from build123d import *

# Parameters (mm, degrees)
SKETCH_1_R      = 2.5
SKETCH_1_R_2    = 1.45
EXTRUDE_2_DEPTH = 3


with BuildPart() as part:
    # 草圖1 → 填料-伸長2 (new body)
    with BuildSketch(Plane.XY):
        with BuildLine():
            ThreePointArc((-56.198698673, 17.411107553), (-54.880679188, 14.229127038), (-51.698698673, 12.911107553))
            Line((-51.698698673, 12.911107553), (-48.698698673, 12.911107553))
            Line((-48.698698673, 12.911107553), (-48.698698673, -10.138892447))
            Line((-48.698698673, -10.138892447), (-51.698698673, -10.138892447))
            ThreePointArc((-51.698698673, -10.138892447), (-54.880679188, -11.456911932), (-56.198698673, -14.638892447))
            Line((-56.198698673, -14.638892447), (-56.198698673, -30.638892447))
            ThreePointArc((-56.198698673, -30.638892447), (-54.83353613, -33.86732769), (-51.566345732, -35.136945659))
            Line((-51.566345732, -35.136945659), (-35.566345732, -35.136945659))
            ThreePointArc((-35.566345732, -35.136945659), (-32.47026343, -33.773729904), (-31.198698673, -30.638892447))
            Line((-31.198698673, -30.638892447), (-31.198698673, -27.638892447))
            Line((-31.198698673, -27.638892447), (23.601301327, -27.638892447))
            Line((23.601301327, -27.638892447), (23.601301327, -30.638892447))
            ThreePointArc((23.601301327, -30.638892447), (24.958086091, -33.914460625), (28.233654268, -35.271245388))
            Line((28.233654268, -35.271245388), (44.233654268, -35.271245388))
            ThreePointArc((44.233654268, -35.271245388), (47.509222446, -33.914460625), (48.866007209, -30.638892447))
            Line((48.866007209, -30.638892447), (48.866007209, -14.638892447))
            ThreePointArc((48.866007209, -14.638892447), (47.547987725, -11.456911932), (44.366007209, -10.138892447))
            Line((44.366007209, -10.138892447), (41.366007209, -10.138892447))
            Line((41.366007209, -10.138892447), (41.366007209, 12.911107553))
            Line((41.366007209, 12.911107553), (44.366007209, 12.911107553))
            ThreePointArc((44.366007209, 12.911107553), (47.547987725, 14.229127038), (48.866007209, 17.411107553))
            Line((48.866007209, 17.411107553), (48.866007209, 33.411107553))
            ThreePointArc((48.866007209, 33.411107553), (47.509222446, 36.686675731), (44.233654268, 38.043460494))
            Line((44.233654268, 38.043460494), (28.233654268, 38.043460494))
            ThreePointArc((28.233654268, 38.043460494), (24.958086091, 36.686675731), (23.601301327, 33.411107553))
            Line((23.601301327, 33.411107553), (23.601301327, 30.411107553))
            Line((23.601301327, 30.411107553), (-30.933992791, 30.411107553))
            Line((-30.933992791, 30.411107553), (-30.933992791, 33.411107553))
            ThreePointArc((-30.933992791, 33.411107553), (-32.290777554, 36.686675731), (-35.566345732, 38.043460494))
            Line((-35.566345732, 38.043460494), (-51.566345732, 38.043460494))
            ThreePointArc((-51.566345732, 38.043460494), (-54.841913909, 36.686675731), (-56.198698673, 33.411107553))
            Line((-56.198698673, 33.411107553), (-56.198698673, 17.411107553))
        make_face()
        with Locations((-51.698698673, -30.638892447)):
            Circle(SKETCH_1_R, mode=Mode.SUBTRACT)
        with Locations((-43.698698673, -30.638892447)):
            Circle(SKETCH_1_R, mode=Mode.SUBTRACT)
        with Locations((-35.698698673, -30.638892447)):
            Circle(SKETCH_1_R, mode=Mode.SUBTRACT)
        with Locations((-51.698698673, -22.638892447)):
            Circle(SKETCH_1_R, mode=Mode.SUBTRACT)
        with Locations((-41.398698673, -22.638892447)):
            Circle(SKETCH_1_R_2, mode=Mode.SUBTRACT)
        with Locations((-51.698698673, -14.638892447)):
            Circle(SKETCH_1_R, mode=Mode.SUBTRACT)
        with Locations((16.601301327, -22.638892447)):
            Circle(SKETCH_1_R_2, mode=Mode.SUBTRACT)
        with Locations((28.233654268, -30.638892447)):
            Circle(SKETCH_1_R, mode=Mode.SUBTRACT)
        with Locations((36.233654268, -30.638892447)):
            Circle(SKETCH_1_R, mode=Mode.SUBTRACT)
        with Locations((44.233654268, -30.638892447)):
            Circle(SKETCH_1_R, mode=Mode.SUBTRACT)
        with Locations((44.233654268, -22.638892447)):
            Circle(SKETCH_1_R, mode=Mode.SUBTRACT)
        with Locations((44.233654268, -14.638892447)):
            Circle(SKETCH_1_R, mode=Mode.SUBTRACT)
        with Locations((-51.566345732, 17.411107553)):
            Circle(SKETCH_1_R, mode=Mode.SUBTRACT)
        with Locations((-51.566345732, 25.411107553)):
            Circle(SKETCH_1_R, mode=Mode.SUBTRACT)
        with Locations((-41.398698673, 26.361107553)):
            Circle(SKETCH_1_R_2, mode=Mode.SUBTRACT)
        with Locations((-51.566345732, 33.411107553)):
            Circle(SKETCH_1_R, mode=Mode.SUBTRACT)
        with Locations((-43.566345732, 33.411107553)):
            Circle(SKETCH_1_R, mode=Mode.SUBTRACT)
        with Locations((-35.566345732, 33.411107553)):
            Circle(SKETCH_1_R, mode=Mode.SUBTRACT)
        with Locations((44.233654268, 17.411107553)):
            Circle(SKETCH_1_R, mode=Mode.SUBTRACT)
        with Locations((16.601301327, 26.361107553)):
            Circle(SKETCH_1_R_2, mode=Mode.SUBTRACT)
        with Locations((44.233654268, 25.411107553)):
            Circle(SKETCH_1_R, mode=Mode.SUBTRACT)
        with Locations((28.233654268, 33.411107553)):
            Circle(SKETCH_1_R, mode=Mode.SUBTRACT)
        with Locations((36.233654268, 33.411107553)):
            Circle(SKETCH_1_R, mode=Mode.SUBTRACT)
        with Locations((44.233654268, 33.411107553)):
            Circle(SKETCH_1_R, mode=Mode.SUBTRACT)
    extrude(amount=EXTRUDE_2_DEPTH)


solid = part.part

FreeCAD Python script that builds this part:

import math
import FreeCAD as App
import Part
import Sketcher
from FreeCAD import Vector

doc = App.newDocument("Part")
body = doc.addObject("PartDesign::Body", "Body")

# Sketch on XY plane
sketch1 = body.newObject("Sketcher::SketchObject", "Sketch")
sketch1.AttachmentSupport = (doc.getObject("XY_Plane"), [""])
sketch1.MapMode = "FlatFace"
sketch1.addGeometry(Part.ArcOfCircle(Part.Circle(Vector(-51.7, 17.4, 0), Vector(0, 0, 1), 4.5), math.radians(-180), math.radians(-90)), False)
sketch1.addGeometry(Part.LineSegment(Vector(-51.7, 12.9, 0), Vector(-48.7, 12.9, 0)), False)
sketch1.addGeometry(Part.LineSegment(Vector(-48.7, 12.9, 0), Vector(-48.7, -10.1, 0)), False)
sketch1.addGeometry(Part.LineSegment(Vector(-48.7, -10.1, 0), Vector(-51.7, -10.1, 0)), False)
sketch1.addGeometry(Part.ArcOfCircle(Part.Circle(Vector(-51.7, -14.6, 0), Vector(0, 0, 1), 4.5), math.radians(90), math.radians(180)), False)
sketch1.addGeometry(Part.LineSegment(Vector(-56.2, -14.6, 0), Vector(-56.2, -30.6, 0)), False)
sketch1.addGeometry(Part.ArcOfCircle(Part.Circle(Vector(-51.7, -30.6, 0), Vector(0, 0, 1), 4.5), math.radians(180), math.radians(272)), False)
sketch1.addGeometry(Part.LineSegment(Vector(-51.6, -35.1, 0), Vector(-35.6, -35.1, 0)), False)
sketch1.addGeometry(Part.ArcOfCircle(Part.Circle(Vector(-35.7, -30.6, 0), Vector(0, 0, 1), 4.5), math.radians(-88), math.radians(0)), False)
sketch1.addGeometry(Part.LineSegment(Vector(-31.2, -30.6, 0), Vector(-31.2, -27.6, 0)), False)
sketch1.addGeometry(Part.LineSegment(Vector(-31.2, -27.6, 0), Vector(23.6, -27.6, 0)), False)
sketch1.addGeometry(Part.LineSegment(Vector(23.6, -27.6, 0), Vector(23.6, -30.6, 0)), False)
sketch1.addGeometry(Part.ArcOfCircle(Part.Circle(Vector(28.2, -30.6, 0), Vector(0, 0, 1), 4.6), math.radians(180), math.radians(270)), False)
sketch1.addGeometry(Part.LineSegment(Vector(28.2, -35.3, 0), Vector(44.2, -35.3, 0)), False)
sketch1.addGeometry(Part.ArcOfCircle(Part.Circle(Vector(44.2, -30.6, 0), Vector(0, 0, 1), 4.6), math.radians(-90), math.radians(0)), False)
sketch1.addGeometry(Part.LineSegment(Vector(48.9, -30.6, 0), Vector(48.9, -14.6, 0)), False)
sketch1.addGeometry(Part.ArcOfCircle(Part.Circle(Vector(44.4, -14.6, 0), Vector(0, 0, 1), 4.5), math.radians(0), math.radians(90)), False)
sketch1.addGeometry(Part.LineSegment(Vector(44.4, -10.1, 0), Vector(41.4, -10.1, 0)), False)
sketch1.addGeometry(Part.LineSegment(Vector(41.4, -10.1, 0), Vector(41.4, 12.9, 0)), False)
sketch1.addGeometry(Part.LineSegment(Vector(41.4, 12.9, 0), Vector(44.4, 12.9, 0)), False)
sketch1.addGeometry(Part.ArcOfCircle(Part.Circle(Vector(44.4, 17.4, 0), Vector(0, 0, 1), 4.5), math.radians(-90), math.radians(0)), False)
sketch1.addGeometry(Part.LineSegment(Vector(48.9, 17.4, 0), Vector(48.9, 33.4, 0)), False)
sketch1.addGeometry(Part.ArcOfCircle(Part.Circle(Vector(44.2, 33.4, 0), Vector(0, 0, 1), 4.6), math.radians(0), math.radians(90)), False)
sketch1.addGeometry(Part.LineSegment(Vector(44.2, 38, 0), Vector(28.2, 38, 0)), False)
sketch1.addGeometry(Part.ArcOfCircle(Part.Circle(Vector(28.2, 33.4, 0), Vector(0, 0, 1), 4.6), math.radians(90), math.radians(180)), False)
sketch1.addGeometry(Part.LineSegment(Vector(23.6, 33.4, 0), Vector(23.6, 30.4, 0)), False)
sketch1.addGeometry(Part.LineSegment(Vector(23.6, 30.4, 0), Vector(-30.9, 30.4, 0)), False)
sketch1.addGeometry(Part.LineSegment(Vector(-30.9, 30.4, 0), Vector(-30.9, 33.4, 0)), False)
sketch1.addGeometry(Part.ArcOfCircle(Part.Circle(Vector(-35.6, 33.4, 0), Vector(0, 0, 1), 4.6), math.radians(0), math.radians(90)), False)
sketch1.addGeometry(Part.LineSegment(Vector(-35.6, 38, 0), Vector(-51.6, 38, 0)), False)
sketch1.addGeometry(Part.ArcOfCircle(Part.Circle(Vector(-51.6, 33.4, 0), Vector(0, 0, 1), 4.6), math.radians(90), math.radians(180)), False)
sketch1.addGeometry(Part.LineSegment(Vector(-56.2, 33.4, 0), Vector(-56.2, 17.4, 0)), False)
sketch1.addGeometry(Part.Circle(Vector(-51.7, -30.6, 0), Vector(0, 0, 1), 2.5), False)
sketch1.addGeometry(Part.Circle(Vector(-43.7, -30.6, 0), Vector(0, 0, 1), 2.5), False)
sketch1.addGeometry(Part.Circle(Vector(-35.7, -30.6, 0), Vector(0, 0, 1), 2.5), False)
sketch1.addGeometry(Part.Circle(Vector(-51.7, -22.6, 0), Vector(0, 0, 1), 2.5), False)
sketch1.addGeometry(Part.Circle(Vector(-41.4, -22.6, 0), Vector(0, 0, 1), 1.4), False)
sketch1.addGeometry(Part.Circle(Vector(-51.7, -14.6, 0), Vector(0, 0, 1), 2.5), False)
sketch1.addGeometry(Part.Circle(Vector(16.6, -22.6, 0), Vector(0, 0, 1), 1.4), False)
sketch1.addGeometry(Part.Circle(Vector(28.2, -30.6, 0), Vector(0, 0, 1), 2.5), False)
sketch1.addGeometry(Part.Circle(Vector(36.2, -30.6, 0), Vector(0, 0, 1), 2.5), False)
sketch1.addGeometry(Part.Circle(Vector(44.2, -30.6, 0), Vector(0, 0, 1), 2.5), False)
sketch1.addGeometry(Part.Circle(Vector(44.2, -22.6, 0), Vector(0, 0, 1), 2.5), False)
sketch1.addGeometry(Part.Circle(Vector(44.2, -14.6, 0), Vector(0, 0, 1), 2.5), False)
sketch1.addGeometry(Part.Circle(Vector(-51.6, 17.4, 0), Vector(0, 0, 1), 2.5), False)
sketch1.addGeometry(Part.Circle(Vector(-51.6, 25.4, 0), Vector(0, 0, 1), 2.5), False)
sketch1.addGeometry(Part.Circle(Vector(-41.4, 26.4, 0), Vector(0, 0, 1), 1.4), False)
sketch1.addGeometry(Part.Circle(Vector(-51.6, 33.4, 0), Vector(0, 0, 1), 2.5), False)
sketch1.addGeometry(Part.Circle(Vector(-43.6, 33.4, 0), Vector(0, 0, 1), 2.5), False)
sketch1.addGeometry(Part.Circle(Vector(-35.6, 33.4, 0), Vector(0, 0, 1), 2.5), False)
sketch1.addGeometry(Part.Circle(Vector(44.2, 17.4, 0), Vector(0, 0, 1), 2.5), False)
sketch1.addGeometry(Part.Circle(Vector(16.6, 26.4, 0), Vector(0, 0, 1), 1.4), False)
sketch1.addGeometry(Part.Circle(Vector(44.2, 25.4, 0), Vector(0, 0, 1), 2.5), False)
sketch1.addGeometry(Part.Circle(Vector(28.2, 33.4, 0), Vector(0, 0, 1), 2.5), False)
sketch1.addGeometry(Part.Circle(Vector(36.2, 33.4, 0), Vector(0, 0, 1), 2.5), False)
sketch1.addGeometry(Part.Circle(Vector(44.2, 33.4, 0), Vector(0, 0, 1), 2.5), False)
sketch1.addConstraint(Sketcher.Constraint("Tangent", 0, 2, 1, 1))
sketch1.addConstraint(Sketcher.Constraint("Coincident", 1, 2, 2, 1))
sketch1.addConstraint(Sketcher.Constraint("Coincident", 2, 2, 3, 1))
sketch1.addConstraint(Sketcher.Constraint("Tangent", 3, 2, 4, 1))
sketch1.addConstraint(Sketcher.Constraint("Tangent", 4, 2, 5, 1))
sketch1.addConstraint(Sketcher.Constraint("Tangent", 5, 2, 6, 1))
sketch1.addConstraint(Sketcher.Constraint("Coincident", 6, 2, 7, 1))
sketch1.addConstraint(Sketcher.Constraint("Coincident", 7, 2, 8, 1))
sketch1.addConstraint(Sketcher.Constraint("Tangent", 8, 2, 9, 1))
sketch1.addConstraint(Sketcher.Constraint("Coincident", 9, 2, 10, 1))
sketch1.addConstraint(Sketcher.Constraint("Coincident", 10, 2, 11, 1))
sketch1.addConstraint(Sketcher.Constraint("Tangent", 11, 2, 12, 1))
sketch1.addConstraint(Sketcher.Constraint("Tangent", 12, 2, 13, 1))
sketch1.addConstraint(Sketcher.Constraint("Tangent", 13, 2, 14, 1))
sketch1.addConstraint(Sketcher.Constraint("Tangent", 14, 2, 15, 1))
sketch1.addConstraint(Sketcher.Constraint("Tangent", 15, 2, 16, 1))
sketch1.addConstraint(Sketcher.Constraint("Tangent", 16, 2, 17, 1))
sketch1.addConstraint(Sketcher.Constraint("Coincident", 17, 2, 18, 1))
sketch1.addConstraint(Sketcher.Constraint("Coincident", 18, 2, 19, 1))
sketch1.addConstraint(Sketcher.Constraint("Tangent", 19, 2, 20, 1))
sketch1.addConstraint(Sketcher.Constraint("Tangent", 20, 2, 21, 1))
sketch1.addConstraint(Sketcher.Constraint("Tangent", 21, 2, 22, 1))
sketch1.addConstraint(Sketcher.Constraint("Tangent", 22, 2, 23, 1))
sketch1.addConstraint(Sketcher.Constraint("Tangent", 23, 2, 24, 1))
sketch1.addConstraint(Sketcher.Constraint("Tangent", 24, 2, 25, 1))
sketch1.addConstraint(Sketcher.Constraint("Coincident", 25, 2, 26, 1))
sketch1.addConstraint(Sketcher.Constraint("Coincident", 26, 2, 27, 1))
sketch1.addConstraint(Sketcher.Constraint("Tangent", 27, 2, 28, 1))
sketch1.addConstraint(Sketcher.Constraint("Tangent", 28, 2, 29, 1))
sketch1.addConstraint(Sketcher.Constraint("Tangent", 29, 2, 30, 1))
sketch1.addConstraint(Sketcher.Constraint("Tangent", 30, 2, 31, 1))
sketch1.addConstraint(Sketcher.Constraint("Tangent", 31, 2, 0, 1))
sketch1.addConstraint(Sketcher.Constraint("Horizontal", 1))
sketch1.addConstraint(Sketcher.Constraint("Vertical", 2))
sketch1.addConstraint(Sketcher.Constraint("Horizontal", 3))
sketch1.addConstraint(Sketcher.Constraint("Vertical", 5))
sketch1.addConstraint(Sketcher.Constraint("Horizontal", 7))
sketch1.addConstraint(Sketcher.Constraint("Vertical", 9))
sketch1.addConstraint(Sketcher.Constraint("Horizontal", 10))
sketch1.addConstraint(Sketcher.Constraint("Vertical", 11))
sketch1.addConstraint(Sketcher.Constraint("Horizontal", 13))
sketch1.addConstraint(Sketcher.Constraint("Vertical", 15))
sketch1.addConstraint(Sketcher.Constraint("Horizontal", 17))
sketch1.addConstraint(Sketcher.Constraint("Vertical", 18))
sketch1.addConstraint(Sketcher.Constraint("Horizontal", 19))
sketch1.addConstraint(Sketcher.Constraint("Vertical", 21))
sketch1.addConstraint(Sketcher.Constraint("Horizontal", 23))
sketch1.addConstraint(Sketcher.Constraint("Vertical", 25))
sketch1.addConstraint(Sketcher.Constraint("Horizontal", 26))
sketch1.addConstraint(Sketcher.Constraint("Vertical", 27))
sketch1.addConstraint(Sketcher.Constraint("Horizontal", 29))
sketch1.addConstraint(Sketcher.Constraint("Vertical", 31))
sketch1.addConstraint(Sketcher.Constraint("Coincident", 32, 3, 6, 3))
sketch1.addConstraint(Sketcher.Constraint("Coincident", 34, 3, 8, 3))
sketch1.addConstraint(Sketcher.Constraint("Coincident", 37, 3, 4, 3))
sketch1.addConstraint(Sketcher.Constraint("Coincident", 39, 3, 12, 3))
sketch1.addConstraint(Sketcher.Constraint("Coincident", 41, 3, 14, 3))
sketch1.addConstraint(Sketcher.Constraint("Coincident", 47, 3, 30, 3))
sketch1.addConstraint(Sketcher.Constraint("Coincident", 49, 3, 28, 3))
sketch1.addConstraint(Sketcher.Constraint("Coincident", 53, 3, 24, 3))
sketch1.addConstraint(Sketcher.Constraint("Coincident", 55, 3, 22, 3))
sketch1.addConstraint(Sketcher.Constraint("Equal", 0, 4))
sketch1.addConstraint(Sketcher.Constraint("Equal", 4, 6))
sketch1.addConstraint(Sketcher.Constraint("Equal", 6, 8))
sketch1.addConstraint(Sketcher.Constraint("Equal", 12, 14))
sketch1.addConstraint(Sketcher.Constraint("Equal", 8, 16))
sketch1.addConstraint(Sketcher.Constraint("Equal", 16, 20))
sketch1.addConstraint(Sketcher.Constraint("Equal", 14, 22))
sketch1.addConstraint(Sketcher.Constraint("Equal", 22, 24))
sketch1.addConstraint(Sketcher.Constraint("Equal", 24, 28))
sketch1.addConstraint(Sketcher.Constraint("Equal", 28, 30))
sketch1.addConstraint(Sketcher.Constraint("Equal", 32, 33))
sketch1.addConstraint(Sketcher.Constraint("Equal", 33, 34))
sketch1.addConstraint(Sketcher.Constraint("Equal", 34, 35))
sketch1.addConstraint(Sketcher.Constraint("Equal", 35, 37))
sketch1.addConstraint(Sketcher.Constraint("Equal", 36, 38))
sketch1.addConstraint(Sketcher.Constraint("Equal", 37, 39))
sketch1.addConstraint(Sketcher.Constraint("Equal", 39, 40))
sketch1.addConstraint(Sketcher.Constraint("Equal", 40, 41))
sketch1.addConstraint(Sketcher.Constraint("Equal", 41, 42))
sketch1.addConstraint(Sketcher.Constraint("Equal", 42, 43))
sketch1.addConstraint(Sketcher.Constraint("Equal", 43, 44))
sketch1.addConstraint(Sketcher.Constraint("Equal", 44, 45))
sketch1.addConstraint(Sketcher.Constraint("Equal", 38, 46))
sketch1.addConstraint(Sketcher.Constraint("Equal", 45, 47))
sketch1.addConstraint(Sketcher.Constraint("Equal", 47, 48))
sketch1.addConstraint(Sketcher.Constraint("Equal", 48, 49))
sketch1.addConstraint(Sketcher.Constraint("Equal", 49, 50))
sketch1.addConstraint(Sketcher.Constraint("Equal", 46, 51))
sketch1.addConstraint(Sketcher.Constraint("Equal", 50, 52))
sketch1.addConstraint(Sketcher.Constraint("Equal", 52, 53))
sketch1.addConstraint(Sketcher.Constraint("Equal", 53, 54))
sketch1.addConstraint(Sketcher.Constraint("Equal", 54, 55))
sketch1.addConstraint(Sketcher.Constraint("Horizontal", 6, 3, 8, 3))
sketch1.addConstraint(Sketcher.Constraint("Horizontal", 8, 3, 12, 3))
sketch1.addConstraint(Sketcher.Constraint("Horizontal", 4, 3, 16, 3))
sketch1.addConstraint(Sketcher.Constraint("Horizontal", 0, 3, 20, 3))
sketch1.addConstraint(Sketcher.Constraint("Horizontal", 24, 3, 28, 3))
sketch1.addConstraint(Sketcher.Constraint("Horizontal", 32, 3, 33, 3))
sketch1.addConstraint(Sketcher.Constraint("Horizontal", 35, 3, 36, 3))
sketch1.addConstraint(Sketcher.Constraint("Horizontal", 36, 3, 38, 3))
sketch1.addConstraint(Sketcher.Constraint("Horizontal", 39, 3, 40, 3))
sketch1.addConstraint(Sketcher.Constraint("Horizontal", 38, 3, 42, 3))
sketch1.addConstraint(Sketcher.Constraint("Horizontal", 37, 3, 43, 3))
sketch1.addConstraint(Sketcher.Constraint("Horizontal", 20, 3, 44, 3))
sketch1.addConstraint(Sketcher.Constraint("Horizontal", 47, 3, 48, 3))
sketch1.addConstraint(Sketcher.Constraint("Horizontal", 44, 3, 50, 3))
sketch1.addConstraint(Sketcher.Constraint("Horizontal", 46, 3, 51, 3))
sketch1.addConstraint(Sketcher.Constraint("Horizontal", 45, 3, 52, 3))
sketch1.addConstraint(Sketcher.Constraint("Horizontal", 53, 3, 54, 3))
sketch1.addConstraint(Sketcher.Constraint("Vertical", 0, 3, 4, 3))
sketch1.addConstraint(Sketcher.Constraint("Vertical", 16, 3, 20, 3))
sketch1.addConstraint(Sketcher.Constraint("Vertical", 12, 3, 24, 3))
sketch1.addConstraint(Sketcher.Constraint("Vertical", 32, 3, 35, 3))
sketch1.addConstraint(Sketcher.Constraint("Vertical", 41, 3, 42, 3))
sketch1.addConstraint(Sketcher.Constraint("Vertical", 42, 3, 43, 3))
sketch1.addConstraint(Sketcher.Constraint("Vertical", 30, 3, 44, 3))
sketch1.addConstraint(Sketcher.Constraint("Vertical", 44, 3, 45, 3))
sketch1.addConstraint(Sketcher.Constraint("Vertical", 36, 3, 46, 3))
sketch1.addConstraint(Sketcher.Constraint("Vertical", 43, 3, 50, 3))
sketch1.addConstraint(Sketcher.Constraint("Vertical", 38, 3, 51, 3))
sketch1.addConstraint(Sketcher.Constraint("Vertical", 50, 3, 52, 3))
sketch1.addConstraint(Sketcher.Constraint("Vertical", 40, 3, 54, 3))
sketch1.addConstraint(Sketcher.Constraint("Vertical", 47, 3, 6, 2))
sketch1.addConstraint(Sketcher.Constraint("Vertical", 49, 3, 7, 2))
sketch1.addConstraint(Sketcher.Constraint("Equal", 7, 13))
sketch1.addConstraint(Sketcher.Constraint("Equal", 3, 17))
sketch1.addConstraint(Sketcher.Constraint("Equal", 29, 5))
sketch1.addConstraint(Sketcher.Constraint("Equal", 19, 9))
sketch1.addConstraint(Sketcher.Constraint("Equal", 15, 21))
sketch1.addConstraint(Sketcher.Constraint("Equal", 11, 25))
sketch1.addConstraint(Sketcher.Constraint("Diameter", 32, 5.0))
sketch1.addConstraint(Sketcher.Constraint("Diameter", 36, 2.9))
sketch1.addConstraint(Sketcher.Constraint("Radius", 0, 4.5))
sketch1.addConstraint(Sketcher.Constraint("DistanceX", 1, 1, 1, 2, 3.0))
sketch1.addConstraint(Sketcher.Constraint("DistanceX", 7, 1, 7, 2, 16.0))
sketch1.addConstraint(Sketcher.Constraint("DistanceX", 10, 1, 10, 2, 54.8))
sketch1.addConstraint(Sketcher.Constraint("DistanceY", 2, 2, 2, 1, 23.05))
sketch1.addConstraint(Sketcher.Constraint("Radius", 12, 4.632353))
sketch1.addConstraint(Sketcher.Constraint("DistanceX", 0, 3, -1, 1, 51.698699))
sketch1.addConstraint(Sketcher.Constraint("DistanceX", 33, 3, -1, 1, 43.698699))
sketch1.addConstraint(Sketcher.Constraint("DistanceX", 36, 3, -1, 1, 41.398699))
sketch1.addConstraint(Sketcher.Constraint("DistanceX", -1, 1, 38, 3, 16.601301))
sketch1.addConstraint(Sketcher.Constraint("DistanceY", -1, 1, 22, 2, 38.04346))
sketch1.addConstraint(Sketcher.Constraint("DistanceY", 35, 3, -1, 1, 22.638892))
sketch1.addConstraint(Sketcher.Constraint("DistanceX", -1, 1, 40, 3, 36.233654))
sketch1.addConstraint(Sketcher.Constraint("DistanceY", -1, 1, 45, 3, 25.411108))
sketch1.addConstraint(Sketcher.Constraint("DistanceY", -1, 1, 46, 3, 26.361108))
sketch1.addConstraint(Sketcher.Constraint("DistanceX", 48, 3, -1, 1, 43.566346))
pad1 = body.newObject("PartDesign::Pad", "Pad")
pad1.Profile = sketch1
pad1.Length = 3

doc.recompute()
